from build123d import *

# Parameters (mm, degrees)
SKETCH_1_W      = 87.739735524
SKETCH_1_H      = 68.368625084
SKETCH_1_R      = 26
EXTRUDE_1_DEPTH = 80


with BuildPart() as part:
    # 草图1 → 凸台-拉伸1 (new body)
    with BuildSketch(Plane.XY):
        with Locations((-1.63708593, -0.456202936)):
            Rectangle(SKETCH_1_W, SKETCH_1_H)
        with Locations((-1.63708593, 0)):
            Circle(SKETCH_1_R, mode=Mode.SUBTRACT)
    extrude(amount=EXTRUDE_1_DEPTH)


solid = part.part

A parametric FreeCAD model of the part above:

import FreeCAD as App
import Part
import Sketcher

V = App.Vector
Q = App.Units.Quantity


def add_polygon(sketch, points):
    """Adds a closed chain of lines whose ends are joined by coincident constraints."""
    first, n = sketch.GeometryCount, len(points)
    for a, b in zip(points, points[1:] + points[:1]):
        sketch.addGeometry(Part.LineSegment(App.Vector(*a, 0), App.Vector(*b, 0)), False)
    for i in range(n):
        sketch.addConstraint(Sketcher.Constraint("Coincident", first + i, 2, first + (i + 1) % n, 1))

doc = App.newDocument("Part")
body = doc.addObject("PartDesign::Body", "Body")

# Sketch on XY plane
sketch1 = body.newObject("Sketcher::SketchObject", "Sketch")
sketch1.AttachmentSupport = (doc.getObject("XY_Plane"), [""])
sketch1.MapMode = "FlatFace"
add_polygon(sketch1, [(-46, 34), (-46, -35), (42, -35), (42, 34)])  # lines 0-3
sketch1.addGeometry(Part.Circle(V(-2, 0, 0), V(0, 0, 1), 26), False)  # 4
sketch1.addConstraint([
    Sketcher.Constraint("Vertical", 0),
    Sketcher.Constraint("Horizontal", 1),
    Sketcher.Constraint("Vertical", 2),
    Sketcher.Constraint("Horizontal", 3),
    Sketcher.Constraint("PointOnObject", 4, 3, -1),
    Sketcher.Constraint("Diameter", 4, Q("52 mm")),
    Sketcher.Constraint("DistanceX", 1, 1, 1, 2, Q("87.739736 mm")),
    Sketcher.Constraint("DistanceY", 0, 2, 0, 1, Q("68.368625 mm")),
    Sketcher.Constraint("DistanceX", -1, 1, 1, 2, Q("42.232782 mm")),
    Sketcher.Constraint("DistanceY", -1, 1, 2, 2, Q("33.72811 mm")),
    Sketcher.Constraint("DistanceX", 4, 3, -1, 1, Q("1.637086 mm")),
])
pad1 = body.newObject("PartDesign::Pad", "Pad")
pad1.Profile = sketch1
pad1.Length = 80

doc.recompute()
